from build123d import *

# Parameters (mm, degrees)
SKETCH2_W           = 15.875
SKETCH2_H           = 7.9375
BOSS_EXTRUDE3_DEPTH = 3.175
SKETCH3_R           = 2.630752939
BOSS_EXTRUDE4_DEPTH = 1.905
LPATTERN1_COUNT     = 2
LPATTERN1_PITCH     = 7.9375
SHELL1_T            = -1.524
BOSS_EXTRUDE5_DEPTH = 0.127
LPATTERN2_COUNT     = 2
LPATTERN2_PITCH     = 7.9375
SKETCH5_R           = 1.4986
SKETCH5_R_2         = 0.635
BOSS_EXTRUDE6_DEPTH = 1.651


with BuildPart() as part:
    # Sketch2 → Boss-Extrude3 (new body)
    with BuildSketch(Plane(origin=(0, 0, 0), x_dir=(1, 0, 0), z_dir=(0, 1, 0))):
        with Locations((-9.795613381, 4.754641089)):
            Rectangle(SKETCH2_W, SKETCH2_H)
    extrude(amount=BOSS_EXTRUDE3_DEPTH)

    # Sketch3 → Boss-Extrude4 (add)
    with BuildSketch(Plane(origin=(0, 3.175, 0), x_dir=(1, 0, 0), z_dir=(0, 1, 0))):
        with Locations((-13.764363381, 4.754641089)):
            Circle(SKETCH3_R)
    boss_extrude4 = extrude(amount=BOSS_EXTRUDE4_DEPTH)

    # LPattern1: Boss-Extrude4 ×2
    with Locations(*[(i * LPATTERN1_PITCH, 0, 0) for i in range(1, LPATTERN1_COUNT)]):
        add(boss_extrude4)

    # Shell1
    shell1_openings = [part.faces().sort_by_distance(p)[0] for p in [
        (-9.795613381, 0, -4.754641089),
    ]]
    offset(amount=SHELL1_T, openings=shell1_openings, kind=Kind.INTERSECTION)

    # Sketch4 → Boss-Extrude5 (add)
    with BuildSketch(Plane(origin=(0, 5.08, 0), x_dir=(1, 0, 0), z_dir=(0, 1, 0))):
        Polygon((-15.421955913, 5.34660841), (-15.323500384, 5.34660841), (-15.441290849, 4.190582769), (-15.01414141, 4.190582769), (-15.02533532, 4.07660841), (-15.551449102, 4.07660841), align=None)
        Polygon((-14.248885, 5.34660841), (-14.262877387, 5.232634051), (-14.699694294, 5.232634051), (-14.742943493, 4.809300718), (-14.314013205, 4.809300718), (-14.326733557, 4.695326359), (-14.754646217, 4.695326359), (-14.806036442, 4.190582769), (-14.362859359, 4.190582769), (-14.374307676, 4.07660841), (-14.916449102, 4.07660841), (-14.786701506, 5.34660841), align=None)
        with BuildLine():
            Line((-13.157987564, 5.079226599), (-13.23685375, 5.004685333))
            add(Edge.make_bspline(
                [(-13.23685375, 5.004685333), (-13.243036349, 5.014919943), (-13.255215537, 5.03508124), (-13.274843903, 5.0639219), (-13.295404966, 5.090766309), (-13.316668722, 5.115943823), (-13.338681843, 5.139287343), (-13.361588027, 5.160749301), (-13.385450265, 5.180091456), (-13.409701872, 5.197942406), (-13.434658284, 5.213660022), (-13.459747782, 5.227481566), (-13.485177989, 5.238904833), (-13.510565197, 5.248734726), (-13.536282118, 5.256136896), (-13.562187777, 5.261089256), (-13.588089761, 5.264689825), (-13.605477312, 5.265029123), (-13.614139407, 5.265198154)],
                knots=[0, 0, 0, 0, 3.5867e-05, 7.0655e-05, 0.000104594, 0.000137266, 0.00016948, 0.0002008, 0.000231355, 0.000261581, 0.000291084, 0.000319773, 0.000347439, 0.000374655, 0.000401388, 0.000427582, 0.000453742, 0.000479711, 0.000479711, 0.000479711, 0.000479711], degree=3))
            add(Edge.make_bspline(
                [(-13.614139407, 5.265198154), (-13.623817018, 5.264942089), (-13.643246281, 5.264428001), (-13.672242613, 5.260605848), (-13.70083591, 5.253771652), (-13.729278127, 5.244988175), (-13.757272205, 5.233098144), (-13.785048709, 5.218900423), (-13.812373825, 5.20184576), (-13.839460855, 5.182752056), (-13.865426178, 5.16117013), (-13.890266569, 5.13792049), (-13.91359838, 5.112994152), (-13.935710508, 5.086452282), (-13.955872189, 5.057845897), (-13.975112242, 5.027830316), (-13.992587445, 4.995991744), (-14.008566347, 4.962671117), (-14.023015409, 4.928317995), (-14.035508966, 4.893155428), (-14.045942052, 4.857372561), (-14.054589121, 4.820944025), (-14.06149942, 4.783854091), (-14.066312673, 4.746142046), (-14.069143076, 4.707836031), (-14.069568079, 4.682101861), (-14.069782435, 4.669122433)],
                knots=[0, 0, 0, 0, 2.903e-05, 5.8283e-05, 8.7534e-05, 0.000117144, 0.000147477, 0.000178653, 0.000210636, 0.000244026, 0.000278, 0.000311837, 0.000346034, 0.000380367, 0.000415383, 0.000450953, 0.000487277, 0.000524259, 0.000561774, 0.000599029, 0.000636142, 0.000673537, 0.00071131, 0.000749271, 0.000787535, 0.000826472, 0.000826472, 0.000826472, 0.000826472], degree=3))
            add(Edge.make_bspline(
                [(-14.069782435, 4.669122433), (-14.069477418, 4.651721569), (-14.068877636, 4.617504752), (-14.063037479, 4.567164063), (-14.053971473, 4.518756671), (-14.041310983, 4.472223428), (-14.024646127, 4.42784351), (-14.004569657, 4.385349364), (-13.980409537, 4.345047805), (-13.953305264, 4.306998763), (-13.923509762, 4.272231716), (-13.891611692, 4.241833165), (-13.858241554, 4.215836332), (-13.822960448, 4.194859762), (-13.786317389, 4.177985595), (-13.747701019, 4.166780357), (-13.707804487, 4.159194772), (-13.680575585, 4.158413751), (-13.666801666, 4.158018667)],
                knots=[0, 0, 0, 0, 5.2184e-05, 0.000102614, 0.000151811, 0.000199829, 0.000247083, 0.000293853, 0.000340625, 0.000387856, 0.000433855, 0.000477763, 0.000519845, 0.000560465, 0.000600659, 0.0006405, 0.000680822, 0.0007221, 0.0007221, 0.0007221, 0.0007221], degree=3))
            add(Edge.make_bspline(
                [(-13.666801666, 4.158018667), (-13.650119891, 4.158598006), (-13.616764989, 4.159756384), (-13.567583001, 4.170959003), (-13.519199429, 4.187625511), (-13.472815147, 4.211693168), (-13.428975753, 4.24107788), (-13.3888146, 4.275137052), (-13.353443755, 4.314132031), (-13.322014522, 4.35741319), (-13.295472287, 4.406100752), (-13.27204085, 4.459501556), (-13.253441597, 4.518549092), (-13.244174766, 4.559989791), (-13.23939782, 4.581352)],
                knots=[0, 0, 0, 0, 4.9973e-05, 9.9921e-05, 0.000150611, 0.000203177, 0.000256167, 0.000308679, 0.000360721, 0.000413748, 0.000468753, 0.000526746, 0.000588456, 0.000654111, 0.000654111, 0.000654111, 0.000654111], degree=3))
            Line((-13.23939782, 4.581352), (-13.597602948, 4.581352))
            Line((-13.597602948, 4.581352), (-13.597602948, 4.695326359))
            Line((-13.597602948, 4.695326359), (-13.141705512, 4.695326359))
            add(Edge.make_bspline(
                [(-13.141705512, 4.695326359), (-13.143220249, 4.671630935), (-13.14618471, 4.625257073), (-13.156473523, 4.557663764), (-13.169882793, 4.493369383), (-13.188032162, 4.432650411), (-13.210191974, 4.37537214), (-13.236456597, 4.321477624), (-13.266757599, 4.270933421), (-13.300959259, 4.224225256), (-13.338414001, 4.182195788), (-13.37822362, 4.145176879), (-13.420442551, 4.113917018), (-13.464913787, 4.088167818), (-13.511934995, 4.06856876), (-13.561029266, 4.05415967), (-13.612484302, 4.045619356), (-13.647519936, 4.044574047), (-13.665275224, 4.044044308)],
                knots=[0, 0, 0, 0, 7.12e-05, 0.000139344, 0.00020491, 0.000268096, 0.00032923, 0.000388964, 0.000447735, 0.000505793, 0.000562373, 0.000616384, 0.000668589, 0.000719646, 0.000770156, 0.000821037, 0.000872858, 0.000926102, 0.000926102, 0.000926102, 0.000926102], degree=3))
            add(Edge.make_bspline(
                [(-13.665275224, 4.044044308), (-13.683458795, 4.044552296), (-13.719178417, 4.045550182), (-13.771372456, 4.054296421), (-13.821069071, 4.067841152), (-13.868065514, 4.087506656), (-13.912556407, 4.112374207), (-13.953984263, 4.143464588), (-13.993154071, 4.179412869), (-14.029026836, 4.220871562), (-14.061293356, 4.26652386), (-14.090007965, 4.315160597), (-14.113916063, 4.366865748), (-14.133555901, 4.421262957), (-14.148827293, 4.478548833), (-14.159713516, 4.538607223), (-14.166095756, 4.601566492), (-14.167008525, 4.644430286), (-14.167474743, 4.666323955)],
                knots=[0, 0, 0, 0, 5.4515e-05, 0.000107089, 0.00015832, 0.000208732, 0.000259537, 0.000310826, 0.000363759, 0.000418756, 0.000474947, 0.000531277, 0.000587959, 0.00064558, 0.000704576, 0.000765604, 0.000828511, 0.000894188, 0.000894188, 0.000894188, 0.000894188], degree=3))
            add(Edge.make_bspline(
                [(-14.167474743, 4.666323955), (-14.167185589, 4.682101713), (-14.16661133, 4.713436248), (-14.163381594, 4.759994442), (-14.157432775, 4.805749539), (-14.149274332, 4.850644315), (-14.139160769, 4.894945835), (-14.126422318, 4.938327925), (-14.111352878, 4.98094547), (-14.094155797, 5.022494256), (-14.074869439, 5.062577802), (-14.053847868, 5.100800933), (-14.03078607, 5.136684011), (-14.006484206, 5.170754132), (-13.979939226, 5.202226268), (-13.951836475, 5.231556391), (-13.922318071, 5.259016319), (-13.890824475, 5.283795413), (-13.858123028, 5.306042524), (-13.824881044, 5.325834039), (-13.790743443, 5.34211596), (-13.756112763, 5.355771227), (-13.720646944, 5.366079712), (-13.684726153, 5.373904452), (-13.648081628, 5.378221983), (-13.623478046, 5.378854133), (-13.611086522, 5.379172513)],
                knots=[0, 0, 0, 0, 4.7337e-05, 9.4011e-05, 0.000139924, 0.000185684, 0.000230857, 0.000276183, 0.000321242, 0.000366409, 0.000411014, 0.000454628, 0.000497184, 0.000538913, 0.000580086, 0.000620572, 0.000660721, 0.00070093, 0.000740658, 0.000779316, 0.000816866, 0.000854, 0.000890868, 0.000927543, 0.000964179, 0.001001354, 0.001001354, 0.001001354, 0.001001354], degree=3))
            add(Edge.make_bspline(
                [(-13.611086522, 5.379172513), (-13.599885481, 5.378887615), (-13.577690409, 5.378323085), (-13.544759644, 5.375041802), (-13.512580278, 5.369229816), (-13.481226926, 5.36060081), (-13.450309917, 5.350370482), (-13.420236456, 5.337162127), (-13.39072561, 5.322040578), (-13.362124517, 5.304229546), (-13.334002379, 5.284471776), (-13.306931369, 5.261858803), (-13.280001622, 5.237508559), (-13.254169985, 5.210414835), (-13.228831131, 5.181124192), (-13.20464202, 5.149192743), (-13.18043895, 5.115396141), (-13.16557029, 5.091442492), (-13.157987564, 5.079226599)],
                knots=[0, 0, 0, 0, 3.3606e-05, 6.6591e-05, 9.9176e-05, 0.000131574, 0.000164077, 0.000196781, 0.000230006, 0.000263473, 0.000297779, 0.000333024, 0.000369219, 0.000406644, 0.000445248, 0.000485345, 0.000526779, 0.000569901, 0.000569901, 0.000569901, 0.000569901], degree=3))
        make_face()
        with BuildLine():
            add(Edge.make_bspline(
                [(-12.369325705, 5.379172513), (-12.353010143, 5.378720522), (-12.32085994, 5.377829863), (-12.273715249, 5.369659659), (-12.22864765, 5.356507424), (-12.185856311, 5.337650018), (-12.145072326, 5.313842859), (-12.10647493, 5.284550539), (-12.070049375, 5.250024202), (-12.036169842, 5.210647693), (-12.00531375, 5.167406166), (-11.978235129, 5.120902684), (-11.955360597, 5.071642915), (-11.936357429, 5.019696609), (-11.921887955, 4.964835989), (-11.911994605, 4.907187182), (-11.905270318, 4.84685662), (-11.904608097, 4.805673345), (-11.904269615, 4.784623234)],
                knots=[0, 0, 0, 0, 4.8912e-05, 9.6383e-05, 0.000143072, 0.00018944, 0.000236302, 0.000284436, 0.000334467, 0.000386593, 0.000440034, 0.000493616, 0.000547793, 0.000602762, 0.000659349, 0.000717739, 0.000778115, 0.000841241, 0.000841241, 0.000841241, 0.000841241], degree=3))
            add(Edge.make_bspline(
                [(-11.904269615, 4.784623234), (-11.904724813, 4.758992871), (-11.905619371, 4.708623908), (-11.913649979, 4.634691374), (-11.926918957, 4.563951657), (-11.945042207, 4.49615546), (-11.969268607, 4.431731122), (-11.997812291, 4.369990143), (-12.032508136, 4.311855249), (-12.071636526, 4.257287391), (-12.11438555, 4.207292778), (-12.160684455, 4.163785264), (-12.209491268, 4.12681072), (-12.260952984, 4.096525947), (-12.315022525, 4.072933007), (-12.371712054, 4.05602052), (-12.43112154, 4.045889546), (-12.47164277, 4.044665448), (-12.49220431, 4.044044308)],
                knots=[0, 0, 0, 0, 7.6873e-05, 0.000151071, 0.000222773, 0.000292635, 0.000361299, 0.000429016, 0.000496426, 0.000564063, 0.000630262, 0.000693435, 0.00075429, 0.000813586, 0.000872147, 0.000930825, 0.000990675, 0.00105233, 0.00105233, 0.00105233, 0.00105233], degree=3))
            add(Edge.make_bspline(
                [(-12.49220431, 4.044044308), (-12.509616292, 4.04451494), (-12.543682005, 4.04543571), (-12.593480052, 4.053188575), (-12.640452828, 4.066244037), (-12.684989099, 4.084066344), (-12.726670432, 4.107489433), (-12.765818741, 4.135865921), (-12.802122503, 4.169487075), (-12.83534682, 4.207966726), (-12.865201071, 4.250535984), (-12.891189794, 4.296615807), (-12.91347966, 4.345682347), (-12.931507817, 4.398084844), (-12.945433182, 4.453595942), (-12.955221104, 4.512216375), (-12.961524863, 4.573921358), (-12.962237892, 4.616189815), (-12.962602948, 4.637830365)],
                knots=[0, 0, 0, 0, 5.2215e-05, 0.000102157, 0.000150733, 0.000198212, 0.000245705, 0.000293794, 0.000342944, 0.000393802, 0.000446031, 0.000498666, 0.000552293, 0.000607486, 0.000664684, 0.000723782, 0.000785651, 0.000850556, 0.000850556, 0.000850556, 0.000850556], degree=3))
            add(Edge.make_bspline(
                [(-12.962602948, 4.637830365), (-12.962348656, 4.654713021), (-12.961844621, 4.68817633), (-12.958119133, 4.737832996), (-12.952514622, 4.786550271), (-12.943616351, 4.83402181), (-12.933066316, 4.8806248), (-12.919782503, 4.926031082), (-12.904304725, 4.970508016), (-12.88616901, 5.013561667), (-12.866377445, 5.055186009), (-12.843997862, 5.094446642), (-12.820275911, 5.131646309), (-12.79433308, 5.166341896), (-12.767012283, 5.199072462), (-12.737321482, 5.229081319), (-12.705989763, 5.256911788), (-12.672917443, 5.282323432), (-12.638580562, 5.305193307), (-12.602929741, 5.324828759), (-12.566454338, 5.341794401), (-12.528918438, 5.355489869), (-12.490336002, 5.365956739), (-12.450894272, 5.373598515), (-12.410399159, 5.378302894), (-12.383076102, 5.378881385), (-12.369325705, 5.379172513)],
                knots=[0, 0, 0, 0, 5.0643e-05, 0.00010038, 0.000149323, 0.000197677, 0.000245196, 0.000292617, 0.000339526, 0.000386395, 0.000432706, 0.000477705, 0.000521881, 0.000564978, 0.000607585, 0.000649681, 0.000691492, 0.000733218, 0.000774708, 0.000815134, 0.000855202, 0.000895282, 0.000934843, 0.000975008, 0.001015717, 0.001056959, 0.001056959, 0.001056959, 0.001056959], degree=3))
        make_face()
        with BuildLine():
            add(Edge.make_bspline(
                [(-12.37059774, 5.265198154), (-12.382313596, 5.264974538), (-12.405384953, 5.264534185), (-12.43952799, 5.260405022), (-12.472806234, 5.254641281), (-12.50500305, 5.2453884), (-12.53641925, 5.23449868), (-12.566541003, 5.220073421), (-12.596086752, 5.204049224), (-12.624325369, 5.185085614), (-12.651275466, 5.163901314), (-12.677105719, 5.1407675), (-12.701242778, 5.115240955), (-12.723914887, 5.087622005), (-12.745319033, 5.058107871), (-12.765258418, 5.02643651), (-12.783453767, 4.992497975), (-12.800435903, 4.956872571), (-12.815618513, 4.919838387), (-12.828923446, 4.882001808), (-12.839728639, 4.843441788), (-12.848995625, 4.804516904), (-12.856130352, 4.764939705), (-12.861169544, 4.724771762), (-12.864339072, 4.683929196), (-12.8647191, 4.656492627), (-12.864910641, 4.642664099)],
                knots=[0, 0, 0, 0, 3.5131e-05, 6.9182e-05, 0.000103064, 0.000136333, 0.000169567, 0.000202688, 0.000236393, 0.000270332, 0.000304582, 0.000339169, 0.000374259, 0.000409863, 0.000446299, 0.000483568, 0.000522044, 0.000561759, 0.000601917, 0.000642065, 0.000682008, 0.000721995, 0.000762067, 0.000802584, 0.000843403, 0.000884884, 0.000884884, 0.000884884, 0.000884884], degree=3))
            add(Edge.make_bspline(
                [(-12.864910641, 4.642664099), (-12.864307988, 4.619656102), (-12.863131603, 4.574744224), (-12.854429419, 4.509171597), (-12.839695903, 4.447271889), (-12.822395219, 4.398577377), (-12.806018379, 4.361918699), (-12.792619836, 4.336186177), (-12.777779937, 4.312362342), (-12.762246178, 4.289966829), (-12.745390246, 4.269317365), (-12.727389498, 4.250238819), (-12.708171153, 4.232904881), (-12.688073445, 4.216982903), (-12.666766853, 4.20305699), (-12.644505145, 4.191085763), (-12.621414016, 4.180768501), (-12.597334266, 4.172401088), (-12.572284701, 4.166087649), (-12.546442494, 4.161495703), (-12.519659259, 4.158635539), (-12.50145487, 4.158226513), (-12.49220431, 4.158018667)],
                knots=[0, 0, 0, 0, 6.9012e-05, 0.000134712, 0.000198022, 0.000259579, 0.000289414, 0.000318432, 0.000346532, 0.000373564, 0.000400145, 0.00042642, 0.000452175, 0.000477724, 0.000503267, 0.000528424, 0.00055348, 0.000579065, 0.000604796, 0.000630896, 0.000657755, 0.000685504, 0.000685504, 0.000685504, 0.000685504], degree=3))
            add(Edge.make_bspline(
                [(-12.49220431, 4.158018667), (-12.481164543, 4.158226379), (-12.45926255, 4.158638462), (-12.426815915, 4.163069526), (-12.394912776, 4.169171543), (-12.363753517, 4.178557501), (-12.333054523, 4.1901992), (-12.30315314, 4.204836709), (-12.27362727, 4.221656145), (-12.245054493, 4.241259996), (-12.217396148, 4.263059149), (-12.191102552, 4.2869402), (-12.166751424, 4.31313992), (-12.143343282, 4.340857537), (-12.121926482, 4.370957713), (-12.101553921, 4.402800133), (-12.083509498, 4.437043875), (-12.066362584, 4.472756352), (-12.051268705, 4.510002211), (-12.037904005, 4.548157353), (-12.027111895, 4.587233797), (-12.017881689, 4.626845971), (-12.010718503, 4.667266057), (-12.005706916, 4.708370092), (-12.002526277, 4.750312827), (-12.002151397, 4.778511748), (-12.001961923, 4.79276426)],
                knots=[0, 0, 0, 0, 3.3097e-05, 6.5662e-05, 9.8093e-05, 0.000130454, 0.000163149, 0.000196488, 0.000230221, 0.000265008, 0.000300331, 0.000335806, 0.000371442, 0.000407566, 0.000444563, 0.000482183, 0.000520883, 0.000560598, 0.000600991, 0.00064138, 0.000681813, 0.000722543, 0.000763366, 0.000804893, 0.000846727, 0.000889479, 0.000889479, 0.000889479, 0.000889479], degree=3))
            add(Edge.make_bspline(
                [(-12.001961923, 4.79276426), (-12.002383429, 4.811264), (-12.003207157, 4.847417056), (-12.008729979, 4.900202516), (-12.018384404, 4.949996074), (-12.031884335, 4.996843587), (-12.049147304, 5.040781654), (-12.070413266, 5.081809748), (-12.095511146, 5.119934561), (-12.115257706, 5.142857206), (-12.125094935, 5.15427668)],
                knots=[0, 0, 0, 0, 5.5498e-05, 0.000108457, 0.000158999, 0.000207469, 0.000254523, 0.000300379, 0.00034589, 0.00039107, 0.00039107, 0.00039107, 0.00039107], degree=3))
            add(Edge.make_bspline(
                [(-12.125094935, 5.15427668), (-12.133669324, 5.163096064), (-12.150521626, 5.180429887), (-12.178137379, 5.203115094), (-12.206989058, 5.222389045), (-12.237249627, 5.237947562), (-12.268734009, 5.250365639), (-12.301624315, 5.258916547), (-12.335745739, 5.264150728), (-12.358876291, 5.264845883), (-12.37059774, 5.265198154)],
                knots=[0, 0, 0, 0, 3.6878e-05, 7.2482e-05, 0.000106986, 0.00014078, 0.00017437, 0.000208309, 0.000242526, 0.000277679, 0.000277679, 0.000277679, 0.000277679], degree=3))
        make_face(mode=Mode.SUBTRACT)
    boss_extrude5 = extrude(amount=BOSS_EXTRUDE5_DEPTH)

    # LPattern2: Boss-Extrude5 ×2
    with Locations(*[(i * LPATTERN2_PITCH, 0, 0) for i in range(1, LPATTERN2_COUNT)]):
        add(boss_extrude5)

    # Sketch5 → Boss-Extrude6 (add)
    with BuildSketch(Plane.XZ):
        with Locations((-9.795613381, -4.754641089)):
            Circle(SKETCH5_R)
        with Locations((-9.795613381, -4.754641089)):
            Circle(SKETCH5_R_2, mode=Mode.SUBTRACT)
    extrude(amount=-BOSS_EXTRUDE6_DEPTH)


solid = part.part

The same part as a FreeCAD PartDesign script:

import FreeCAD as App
import Part
import Sketcher
from FreeCAD import Vector
Q = App.Units.Quantity


def faces_at(feature, points):
    """Names of the faces that lie closest to the given points."""
    faces = feature.Shape.Faces
    near = lambda p: min(range(len(faces)), key=lambda i: faces[i].distToShape(Part.Vertex(*p))[0])
    return sorted({f"Face{near(p) + 1}" for p in points})

doc = App.newDocument("Part")
body = doc.addObject("PartDesign::Body", "Body")

# Sketch on XZ plane
sketch1 = doc.addObject("Sketcher::SketchObject", "Sketch")
body.addObject(sketch1)
sketch1.AttachmentSupport = (doc.XZ_Plane, [""])
sketch1.MapMode = "FlatFace"
sketch1.addGeometry([
    Part.LineSegment(Vector(-18, -9, 0), Vector(-18, -1, 0)),
    Part.LineSegment(Vector(-18, -1, 0), Vector(-2, -1, 0)),
    Part.LineSegment(Vector(-2, -1, 0), Vector(-2, -9, 0)),
    Part.LineSegment(Vector(-2, -9, 0), Vector(-18, -9, 0)),
], False)
sketch1.addConstraint([
    Sketcher.Constraint("Coincident", 0, 2, 1, 1),
    Sketcher.Constraint("Coincident", 1, 2, 2, 1),
    Sketcher.Constraint("Coincident", 2, 2, 3, 1),
    Sketcher.Constraint("Coincident", 3, 2, 0, 1),
    Sketcher.Constraint("Vertical", 0),
    Sketcher.Constraint("Horizontal", 1),
    Sketcher.Constraint("Vertical", 2),
    Sketcher.Constraint("Horizontal", 3),
    Sketcher.Constraint("DistanceX", 1, 1, 1, 2, Q("0.625 in")),
    Sketcher.Constraint("DistanceY", 0, 1, 0, 2, Q("0.3125 in")),
    Sketcher.Constraint("DistanceY", 0, 2, -1, 1, 0.785891),
    Sketcher.Constraint("DistanceX", 0, 2, -1, 1, 17.733113),
])
pad1 = doc.addObject("PartDesign::Pad", "Pad")
body.addObject(pad1)
pad1.Profile = sketch1
pad1.Length = Q("0.125 in")
pad1.Reversed = True

# Sketch on XZ plane
sketch2 = doc.addObject("Sketcher::SketchObject", "Sketch001")
body.addObject(sketch2)
sketch2.AttachmentSupport = (doc.XZ_Plane, [""])
sketch2.MapMode = "FlatFace"
sketch2.AttachmentOffset = App.Placement(Vector(0, 0, -0.125 * 25.4), App.Rotation())
sketch2.addGeometry(Part.Circle(Vector(-13.8, -4.8, 0), Vector(0, 0, 1), 2.6), False)
sketch2.addConstraint([
    Sketcher.Constraint("Diameter", 0, 5.261506),
    Sketcher.Constraint("DistanceY", 0, 3, -1, 1, 4.754641),
    Sketcher.Constraint("DistanceX", 0, 3, -1, 1, 13.764363),
])
pad2 = doc.addObject("PartDesign::Pad", "Pad001")
body.addObject(pad2)
pad2.Profile = sketch2
pad2.Length = Q("0.075 in")
pad2.Reversed = True
doc.recompute()

linearpattern = doc.addObject("PartDesign::LinearPattern", "LinearPattern")
body.addObject(linearpattern)
linearpattern.Originals = [pad2]
linearpattern.Direction = (doc.X_Axis, [""])
linearpattern.Mode = "offset"
linearpattern.Offset = Q("0.3125 in")
linearpattern.Occurrences = 2
body.Tip = linearpattern
doc.recompute()

thickness = doc.addObject("PartDesign::Thickness", "Thickness")
body.addObject(thickness)
thickness.Base = (linearpattern, faces_at(linearpattern, [(-9.796, 0, -4.755)]))
thickness.Value = Q("0.06 in")
thickness.Reversed = True
thickness.Join = "Intersection"

# Sketch on XZ plane
sketch3 = doc.addObject("Sketcher::SketchObject", "Sketch002")
body.addObject(sketch3)
sketch3.AttachmentSupport = (doc.XZ_Plane, [""])
sketch3.MapMode = "FlatFace"
sketch3.AttachmentOffset = App.Placement(Vector(0, 0, -0.2 * 25.4), App.Rotation())
sketch3.addGeometry([
    Part.LineSegment(Vector(-15.3235, -5.346608, 0), Vector(-15.421956, -5.346608, 0)),  # 0
    Part.LineSegment(Vector(-15.421956, -5.346608, 0), Vector(-15.551449, -4.076608, 0)),  # 1
    Part.LineSegment(Vector(-15.551449, -4.076608, 0), Vector(-15.025335, -4.076608, 0)),  # 2
    Part.LineSegment(Vector(-15.025335, -4.076608, 0), Vector(-15.014141, -4.190583, 0)),  # 3
    Part.LineSegment(Vector(-15.014141, -4.190583, 0), Vector(-15.441291, -4.190583, 0)),  # 4
    Part.LineSegment(Vector(-15.441291, -4.190583, 0), Vector(-15.3235, -5.346608, 0)),  # 5
    Part.LineSegment(Vector(-14.262877, -5.232634, 0), Vector(-14.248885, -5.346608, 0)),  # 6
    Part.LineSegment(Vector(-14.248885, -5.346608, 0), Vector(-14.786702, -5.346608, 0)),  # 7
    Part.LineSegment(Vector(-14.786702, -5.346608, 0), Vector(-14.916449, -4.076608, 0)),  # 8
    Part.LineSegment(Vector(-14.916449, -4.076608, 0), Vector(-14.374308, -4.076608, 0)),  # 9
    Part.LineSegment(Vector(-14.374308, -4.076608, 0), Vector(-14.362859, -4.190583, 0)),  # 10
    Part.LineSegment(Vector(-14.362859, -4.190583, 0), Vector(-14.806036, -4.190583, 0)),  # 11
    Part.LineSegment(Vector(-14.806036, -4.190583, 0), Vector(-14.754646, -4.695326, 0)),  # 12
    Part.LineSegment(Vector(-14.754646, -4.695326, 0), Vector(-14.326734, -4.695326, 0)),  # 13
    Part.LineSegment(Vector(-14.326734, -4.695326, 0), Vector(-14.314013, -4.809301, 0)),  # 14
    Part.LineSegment(Vector(-14.314013, -4.809301, 0), Vector(-14.742943, -4.809301, 0)),  # 15
    Part.LineSegment(Vector(-14.742943, -4.809301, 0), Vector(-14.699694, -5.232634, 0)),  # 16
    Part.LineSegment(Vector(-14.699694, -5.232634, 0), Vector(-14.262877, -5.232634, 0)),  # 17
    Part.LineSegment(Vector(-13.236854, -5.004685, 0), Vector(-13.157988, -5.079227, 0)),  # 18
    Part.BSplineCurve([Vector(-13.611087, -5.379173, 0), Vector(-13.599885, -5.378888, 0), Vector(-13.57769, -5.378323, 0), Vector(-13.54476, -5.375042, 0), Vector(-13.51258, -5.36923, 0), Vector(-13.481227, -5.360601, 0), Vector(-13.45031, -5.35037, 0), Vector(-13.420236, -5.337162, 0), Vector(-13.390726, -5.322041, 0), Vector(-13.362125, -5.30423, 0), Vector(-13.334002, -5.284472, 0), Vector(-13.306931, -5.261859, 0), Vector(-13.280002, -5.237509, 0), Vector(-13.25417, -5.210415, 0), Vector(-13.228831, -5.181124, 0), Vector(-13.204642, -5.149193, 0), Vector(-13.180439, -5.115396, 0), Vector(-13.16557, -5.091442, 0), Vector(-13.157988, -5.079227, 0)], [4, 1, 1, 1, 1, 1, 1, 1, 1, 1, 1, 1, 1, 1, 1, 1, 4], [0, 0.000033606, 0.000066591, 0.000099176, 0.000131574, 0.000164077, 0.000196781, 0.000230006, 0.000263473, 0.000297779, 0.000333024, 0.000369219, 0.000406644, 0.000445248, 0.000485345, 0.000526779, 0.000569901], False, 3, [1, 1, 1, 1, 1, 1, 1, 1, 1, 1, 1, 1, 1, 1, 1, 1, 1, 1, 1], False),  # 19
    Part.BSplineCurve([Vector(-14.167475, -4.666324, 0), Vector(-14.167186, -4.682102, 0), Vector(-14.166611, -4.713436, 0), Vector(-14.163382, -4.759994, 0), Vector(-14.157433, -4.80575, 0), Vector(-14.149274, -4.850644, 0), Vector(-14.139161, -4.894946, 0), Vector(-14.126422, -4.938328, 0), Vector(-14.111353, -4.980945, 0), Vector(-14.094156, -5.022494, 0), Vector(-14.074869, -5.062578, 0), Vector(-14.053848, -5.100801, 0), Vector(-14.030786, -5.136684, 0), Vector(-14.006484, -5.170754, 0), Vector(-13.979939, -5.202226, 0), Vector(-13.951836, -5.231556, 0), Vector(-13.922318, -5.259016, 0), Vector(-13.890824, -5.283795, 0), Vector(-13.858123, -5.306043, 0), Vector(-13.824881, -5.325834, 0), Vector(-13.790743, -5.342116, 0), Vector(-13.756113, -5.355771, 0), Vector(-13.720647, -5.36608, 0), Vector(-13.684726, -5.373904, 0), Vector(-13.648082, -5.378222, 0), Vector(-13.623478, -5.378854, 0), Vector(-13.611087, -5.379173, 0)], [4, 1, 1, 1, 1, 1, 1, 1, 1, 1, 1, 1, 1, 1, 1, 1, 1, 1, 1, 1, 1, 1, 1, 1, 4], [0, 0.000047337, 0.000094011, 0.000139924, 0.000185684, 0.000230857, 0.000276183, 0.000321242, 0.000366409, 0.000411014, 0.000454628, 0.000497184, 0.000538913, 0.000580086, 0.000620572, 0.000660721, 0.00070093, 0.000740658, 0.000779316, 0.000816866, 0.000854, 0.000890868, 0.000927543, 0.000964179, 0.001001354], False, 3, [1, 1, 1, 1, 1, 1, 1, 1, 1, 1, 1, 1, 1, 1, 1, 1, 1, 1, 1, 1, 1, 1, 1, 1, 1, 1, 1], False),  # 20
    Part.BSplineCurve([Vector(-13.665275, -4.044044, 0), Vector(-13.683459, -4.044552, 0), Vector(-13.719178, -4.04555, 0), Vector(-13.771372, -4.054296, 0), Vector(-13.821069, -4.067841, 0), Vector(-13.868066, -4.087507, 0), Vector(-13.912556, -4.112374, 0), Vector(-13.953984, -4.143465, 0), Vector(-13.993154, -4.179413, 0), Vector(-14.029027, -4.220872, 0), Vector(-14.061293, -4.266524, 0), Vector(-14.090008, -4.315161, 0), Vector(-14.113916, -4.366866, 0), Vector(-14.133556, -4.421263, 0), Vector(-14.148827, -4.478549, 0), Vector(-14.159714, -4.538607, 0), Vector(-14.166096, -4.601566, 0), Vector(-14.167009, -4.64443, 0), Vector(-14.167475, -4.666324, 0)], [4, 1, 1, 1, 1, 1, 1, 1, 1, 1, 1, 1, 1, 1, 1, 1, 4], [0, 0.000054515, 0.000107089, 0.00015832, 0.000208732, 0.000259537, 0.000310826, 0.000363759, 0.000418756, 0.000474947, 0.000531277, 0.000587959, 0.00064558, 0.000704576, 0.000765604, 0.000828511, 0.000894188], False, 3, [1, 1, 1, 1, 1, 1, 1, 1, 1, 1, 1, 1, 1, 1, 1, 1, 1, 1, 1], False),  # 21
    Part.BSplineCurve([Vector(-13.141706, -4.695326, 0), Vector(-13.14322, -4.671631, 0), Vector(-13.146185, -4.625257, 0), Vector(-13.156474, -4.557664, 0), Vector(-13.169883, -4.493369, 0), Vector(-13.188032, -4.43265, 0), Vector(-13.210192, -4.375372, 0), Vector(-13.236457, -4.321478, 0), Vector(-13.266758, -4.270933, 0), Vector(-13.300959, -4.224225, 0), Vector(-13.338414, -4.182196, 0), Vector(-13.378224, -4.145177, 0), Vector(-13.420443, -4.113917, 0), Vector(-13.464914, -4.088168, 0), Vector(-13.511935, -4.068569, 0), Vector(-13.561029, -4.05416, 0), Vector(-13.612484, -4.045619, 0), Vector(-13.64752, -4.044574, 0), Vector(-13.665275, -4.044044, 0)], [4, 1, 1, 1, 1, 1, 1, 1, 1, 1, 1, 1, 1, 1, 1, 1, 4], [0, 0.0000712, 0.000139344, 0.00020491, 0.000268096, 0.00032923, 0.000388964, 0.000447735, 0.000505793, 0.000562373, 0.000616384, 0.000668589, 0.000719646, 0.000770156, 0.000821037, 0.000872858, 0.000926102], False, 3, [1, 1, 1, 1, 1, 1, 1, 1, 1, 1, 1, 1, 1, 1, 1, 1, 1, 1, 1], False),  # 22
    Part.LineSegment(Vector(-13.141706, -4.695326, 0), Vector(-13.597603, -4.695326, 0)),  # 23
    Part.LineSegment(Vector(-13.597603, -4.695326, 0), Vector(-13.597603, -4.581352, 0)),  # 24
    Part.LineSegment(Vector(-13.597603, -4.581352, 0), Vector(-13.239398, -4.581352, 0)),  # 25
    Part.BSplineCurve([Vector(-13.666802, -4.158019, 0), Vector(-13.65012, -4.158598, 0), Vector(-13.616765, -4.159756, 0), Vector(-13.567583, -4.170959, 0), Vector(-13.519199, -4.187626, 0), Vector(-13.472815, -4.211693, 0), Vector(-13.428976, -4.241078, 0), Vector(-13.388815, -4.275137, 0), Vector(-13.353444, -4.314132, 0), Vector(-13.322015, -4.357413, 0), Vector(-13.295472, -4.406101, 0), Vector(-13.272041, -4.459502, 0), Vector(-13.253442, -4.518549, 0), Vector(-13.244175, -4.55999, 0), Vector(-13.239398, -4.581352, 0)], [4, 1, 1, 1, 1, 1, 1, 1, 1, 1, 1, 1, 4], [0, 0.000049973, 0.000099921, 0.000150611, 0.000203177, 0.000256167, 0.000308679, 0.000360721, 0.000413748, 0.000468753, 0.000526746, 0.000588456, 0.000654111], False, 3, [1, 1, 1, 1, 1, 1, 1, 1, 1, 1, 1, 1, 1, 1, 1], False),  # 26
    Part.BSplineCurve([Vector(-14.069782, -4.669122, 0), Vector(-14.069477, -4.651722, 0), Vector(-14.068878, -4.617505, 0), Vector(-14.063037, -4.567164, 0), Vector(-14.053971, -4.518757, 0), Vector(-14.041311, -4.472223, 0), Vector(-14.024646, -4.427844, 0), Vector(-14.00457, -4.385349, 0), Vector(-13.98041, -4.345048, 0), Vector(-13.953305, -4.306999, 0), Vector(-13.92351, -4.272232, 0), Vector(-13.891612, -4.241833, 0), Vector(-13.858242, -4.215836, 0), Vector(-13.82296, -4.19486, 0), Vector(-13.786317, -4.177986, 0), Vector(-13.747701, -4.16678, 0), Vector(-13.707804, -4.159195, 0), Vector(-13.680576, -4.158414, 0), Vector(-13.666802, -4.158019, 0)], [4, 1, 1, 1, 1, 1, 1, 1, 1, 1, 1, 1, 1, 1, 1, 1, 4], [0, 0.000052184, 0.000102614, 0.000151811, 0.000199829, 0.000247083, 0.000293853, 0.000340625, 0.000387856, 0.000433855, 0.000477763, 0.000519845, 0.000560465, 0.000600659, 0.0006405, 0.000680822, 0.0007221], False, 3, [1, 1, 1, 1, 1, 1, 1, 1, 1, 1, 1, 1, 1, 1, 1, 1, 1, 1, 1], False),  # 27
    Part.BSplineCurve([Vector(-13.614139, -5.265198, 0), Vector(-13.623817, -5.264942, 0), Vector(-13.643246, -5.264428, 0), Vector(-13.672243, -5.260606, 0), Vector(-13.700836, -5.253772, 0), Vector(-13.729278, -5.244988, 0), Vector(-13.757272, -5.233098, 0), Vector(-13.785049, -5.2189, 0), Vector(-13.812374, -5.201846, 0), Vector(-13.839461, -5.182752, 0), Vector(-13.865426, -5.16117, 0), Vector(-13.890267, -5.13792, 0), Vector(-13.913598, -5.112994, 0), Vector(-13.935711, -5.086452, 0), Vector(-13.955872, -5.057846, 0), Vector(-13.975112, -5.02783, 0), Vector(-13.992587, -4.995992, 0), Vector(-14.008566, -4.962671, 0), Vector(-14.023015, -4.928318, 0), Vector(-14.035509, -4.893155, 0), Vector(-14.045942, -4.857373, 0), Vector(-14.054589, -4.820944, 0), Vector(-14.061499, -4.783854, 0), Vector(-14.066313, -4.746142, 0), Vector(-14.069143, -4.707836, 0), Vector(-14.069568, -4.682102, 0), Vector(-14.069782, -4.669122, 0)], [4, 1, 1, 1, 1, 1, 1, 1, 1, 1, 1, 1, 1, 1, 1, 1, 1, 1, 1, 1, 1, 1, 1, 1, 4], [0, 0.00002903, 0.000058283, 0.000087534, 0.000117144, 0.000147477, 0.000178653, 0.000210636, 0.000244026, 0.000278, 0.000311837, 0.000346034, 0.000380367, 0.000415383, 0.000450953, 0.000487277, 0.000524259, 0.000561774, 0.000599029, 0.000636142, 0.000673537, 0.00071131, 0.000749271, 0.000787535, 0.000826472], False, 3, [1, 1, 1, 1, 1, 1, 1, 1, 1, 1, 1, 1, 1, 1, 1, 1, 1, 1, 1, 1, 1, 1, 1, 1, 1, 1, 1], False),  # 28
    Part.BSplineCurve([Vector(-13.236854, -5.004685, 0), Vector(-13.243036, -5.01492, 0), Vector(-13.255216, -5.035081, 0), Vector(-13.274844, -5.063922, 0), Vector(-13.295405, -5.090766, 0), Vector(-13.316669, -5.115944, 0), Vector(-13.338682, -5.139287, 0), Vector(-13.361588, -5.160749, 0), Vector(-13.38545, -5.180091, 0), Vector(-13.409702, -5.197942, 0), Vector(-13.434658, -5.21366, 0), Vector(-13.459748, -5.227482, 0), Vector(-13.485178, -5.238905, 0), Vector(-13.510565, -5.248735, 0), Vector(-13.536282, -5.256137, 0), Vector(-13.562188, -5.261089, 0), Vector(-13.58809, -5.26469, 0), Vector(-13.605477, -5.265029, 0), Vector(-13.614139, -5.265198, 0)], [4, 1, 1, 1, 1, 1, 1, 1, 1, 1, 1, 1, 1, 1, 1, 1, 4], [0, 0.000035867, 0.000070655, 0.000104594, 0.000137266, 0.00016948, 0.0002008, 0.000231355, 0.000261581, 0.000291084, 0.000319773, 0.000347439, 0.000374655, 0.000401388, 0.000427582, 0.000453742, 0.000479711], False, 3, [1, 1, 1, 1, 1, 1, 1, 1, 1, 1, 1, 1, 1, 1, 1, 1, 1, 1, 1], False),  # 29
    Part.BSplineCurve([Vector(-12.369326, -5.379173, 0), Vector(-12.35301, -5.378721, 0), Vector(-12.32086, -5.37783, 0), Vector(-12.273715, -5.36966, 0), Vector(-12.228648, -5.356507, 0), Vector(-12.185856, -5.33765, 0), Vector(-12.145072, -5.313843, 0), Vector(-12.106475, -5.284551, 0), Vector(-12.070049, -5.250024, 0), Vector(-12.03617, -5.210648, 0), Vector(-12.005314, -5.167406, 0), Vector(-11.978235, -5.120903, 0), Vector(-11.955361, -5.071643, 0), Vector(-11.936357, -5.019697, 0), Vector(-11.921888, -4.964836, 0), Vector(-11.911995, -4.907187, 0), Vector(-11.90527, -4.846857, 0), Vector(-11.904608, -4.805673, 0), Vector(-11.90427, -4.784623, 0)], [4, 1, 1, 1, 1, 1, 1, 1, 1, 1, 1, 1, 1, 1, 1, 1, 4], [0, 0.000048912, 0.000096383, 0.000143072, 0.00018944, 0.000236302, 0.000284436, 0.000334467, 0.000386593, 0.000440034, 0.000493616, 0.000547793, 0.000602762, 0.000659349, 0.000717739, 0.000778115, 0.000841241], False, 3, [1, 1, 1, 1, 1, 1, 1, 1, 1, 1, 1, 1, 1, 1, 1, 1, 1, 1, 1], False),  # 30
    Part.BSplineCurve([Vector(-12.962603, -4.63783, 0), Vector(-12.962349, -4.654713, 0), Vector(-12.961845, -4.688176, 0), Vector(-12.958119, -4.737833, 0), Vector(-12.952515, -4.78655, 0), Vector(-12.943616, -4.834022, 0), Vector(-12.933066, -4.880625, 0), Vector(-12.919783, -4.926031, 0), Vector(-12.904305, -4.970508, 0), Vector(-12.886169, -5.013562, 0), Vector(-12.866377, -5.055186, 0), Vector(-12.843998, -5.094447, 0), Vector(-12.820276, -5.131646, 0), Vector(-12.794333, -5.166342, 0), Vector(-12.767012, -5.199072, 0), Vector(-12.737321, -5.229081, 0), Vector(-12.70599, -5.256912, 0), Vector(-12.672917, -5.282323, 0), Vector(-12.638581, -5.305193, 0), Vector(-12.60293, -5.324829, 0), Vector(-12.566454, -5.341794, 0), Vector(-12.528918, -5.35549, 0), Vector(-12.490336, -5.365957, 0), Vector(-12.450894, -5.373599, 0), Vector(-12.410399, -5.378303, 0), Vector(-12.383076, -5.378881, 0), Vector(-12.369326, -5.379173, 0)], [4, 1, 1, 1, 1, 1, 1, 1, 1, 1, 1, 1, 1, 1, 1, 1, 1, 1, 1, 1, 1, 1, 1, 1, 4], [0, 0.000050643, 0.00010038, 0.000149323, 0.000197677, 0.000245196, 0.000292617, 0.000339526, 0.000386395, 0.000432706, 0.000477705, 0.000521881, 0.000564978, 0.000607585, 0.000649681, 0.000691492, 0.000733218, 0.000774708, 0.000815134, 0.000855202, 0.000895282, 0.000934843, 0.000975008, 0.001015717, 0.001056959], False, 3, [1, 1, 1, 1, 1, 1, 1, 1, 1, 1, 1, 1, 1, 1, 1, 1, 1, 1, 1, 1, 1, 1, 1, 1, 1, 1, 1], False),  # 31
    Part.BSplineCurve([Vector(-12.492204, -4.044044, 0), Vector(-12.509616, -4.044515, 0), Vector(-12.543682, -4.045436, 0), Vector(-12.59348, -4.053189, 0), Vector(-12.640453, -4.066244, 0), Vector(-12.684989, -4.084066, 0), Vector(-12.72667, -4.107489, 0), Vector(-12.765819, -4.135866, 0), Vector(-12.802123, -4.169487, 0), Vector(-12.835347, -4.207967, 0), Vector(-12.865201, -4.250536, 0), Vector(-12.89119, -4.296616, 0), Vector(-12.91348, -4.345682, 0), Vector(-12.931508, -4.398085, 0), Vector(-12.945433, -4.453596, 0), Vector(-12.955221, -4.512216, 0), Vector(-12.961525, -4.573921, 0), Vector(-12.962238, -4.61619, 0), Vector(-12.962603, -4.63783, 0)], [4, 1, 1, 1, 1, 1, 1, 1, 1, 1, 1, 1, 1, 1, 1, 1, 4], [0, 0.000052215, 0.000102157, 0.000150733, 0.000198212, 0.000245705, 0.000293794, 0.000342944, 0.000393802, 0.000446031, 0.000498666, 0.000552293, 0.000607486, 0.000664684, 0.000723782, 0.000785651, 0.000850556], False, 3, [1, 1, 1, 1, 1, 1, 1, 1, 1, 1, 1, 1, 1, 1, 1, 1, 1, 1, 1], False),  # 32
    Part.BSplineCurve([Vector(-11.90427, -4.784623, 0), Vector(-11.904725, -4.758993, 0), Vector(-11.905619, -4.708624, 0), Vector(-11.91365, -4.634691, 0), Vector(-11.926919, -4.563952, 0), Vector(-11.945042, -4.496155, 0), Vector(-11.969269, -4.431731, 0), Vector(-11.997812, -4.36999, 0), Vector(-12.032508, -4.311855, 0), Vector(-12.071637, -4.257287, 0), Vector(-12.114386, -4.207293, 0), Vector(-12.160684, -4.163785, 0), Vector(-12.209491, -4.126811, 0), Vector(-12.260953, -4.096526, 0), Vector(-12.315023, -4.072933, 0), Vector(-12.371712, -4.056021, 0), Vector(-12.431122, -4.04589, 0), Vector(-12.471643, -4.044665, 0), Vector(-12.492204, -4.044044, 0)], [4, 1, 1, 1, 1, 1, 1, 1, 1, 1, 1, 1, 1, 1, 1, 1, 4], [0, 0.000076873, 0.000151071, 0.000222773, 0.000292635, 0.000361299, 0.000429016, 0.000496426, 0.000564063, 0.000630262, 0.000693435, 0.00075429, 0.000813586, 0.000872147, 0.000930825, 0.000990675, 0.00105233], False, 3, [1, 1, 1, 1, 1, 1, 1, 1, 1, 1, 1, 1, 1, 1, 1, 1, 1, 1, 1], False),  # 33
    Part.BSplineCurve([Vector(-12.125095, -5.154277, 0), Vector(-12.133669, -5.163096, 0), Vector(-12.150522, -5.18043, 0), Vector(-12.178137, -5.203115, 0), Vector(-12.206989, -5.222389, 0), Vector(-12.23725, -5.237948, 0), Vector(-12.268734, -5.250366, 0), Vector(-12.301624, -5.258917, 0), Vector(-12.335746, -5.264151, 0), Vector(-12.358876, -5.264846, 0), Vector(-12.370598, -5.265198, 0)], [4, 1, 1, 1, 1, 1, 1, 1, 4], [0, 0.000036878, 0.000072482, 0.000106986, 0.00014078, 0.00017437, 0.000208309, 0.000242526, 0.000277679], False, 3, [1, 1, 1, 1, 1, 1, 1, 1, 1, 1, 1], False),  # 34
    Part.BSplineCurve([Vector(-12.001962, -4.792764, 0), Vector(-12.002383, -4.811264, 0), Vector(-12.003207, -4.847417, 0), Vector(-12.00873, -4.900203, 0), Vector(-12.018384, -4.949996, 0), Vector(-12.031884, -4.996844, 0), Vector(-12.049147, -5.040782, 0), Vector(-12.070413, -5.08181, 0), Vector(-12.095511, -5.119935, 0), Vector(-12.115258, -5.142857, 0), Vector(-12.125095, -5.154277, 0)], [4, 1, 1, 1, 1, 1, 1, 1, 4], [0, 0.000055498, 0.000108457, 0.000158999, 0.000207469, 0.000254523, 0.000300379, 0.00034589, 0.00039107], False, 3, [1, 1, 1, 1, 1, 1, 1, 1, 1, 1, 1], False),  # 35
    Part.BSplineCurve([Vector(-12.492204, -4.158019, 0), Vector(-12.481165, -4.158226, 0), Vector(-12.459263, -4.158638, 0), Vector(-12.426816, -4.16307, 0), Vector(-12.394913, -4.169172, 0), Vector(-12.363754, -4.178558, 0), Vector(-12.333055, -4.190199, 0), Vector(-12.303153, -4.204837, 0), Vector(-12.273627, -4.221656, 0), Vector(-12.245054, -4.24126, 0), Vector(-12.217396, -4.263059, 0), Vector(-12.191103, -4.28694, 0), Vector(-12.166751, -4.31314, 0), Vector(-12.143343, -4.340858, 0), Vector(-12.121926, -4.370958, 0), Vector(-12.101554, -4.4028, 0), Vector(-12.083509, -4.437044, 0), Vector(-12.066363, -4.472756, 0), Vector(-12.051269, -4.510002, 0), Vector(-12.037904, -4.548157, 0), Vector(-12.027112, -4.587234, 0), Vector(-12.017882, -4.626846, 0), Vector(-12.010719, -4.667266, 0), Vector(-12.005707, -4.70837, 0), Vector(-12.002526, -4.750313, 0), Vector(-12.002151, -4.778512, 0), Vector(-12.001962, -4.792764, 0)], [4, 1, 1, 1, 1, 1, 1, 1, 1, 1, 1, 1, 1, 1, 1, 1, 1, 1, 1, 1, 1, 1, 1, 1, 4], [0, 0.000033097, 0.000065662, 0.000098093, 0.000130454, 0.000163149, 0.000196488, 0.000230221, 0.000265008, 0.000300331, 0.000335806, 0.000371442, 0.000407566, 0.000444563, 0.000482183, 0.000520883, 0.000560598, 0.000600991, 0.00064138, 0.000681813, 0.000722543, 0.000763366, 0.000804893, 0.000846727, 0.000889479], False, 3, [1, 1, 1, 1, 1, 1, 1, 1, 1, 1, 1, 1, 1, 1, 1, 1, 1, 1, 1, 1, 1, 1, 1, 1, 1, 1, 1], False),  # 36
    Part.BSplineCurve([Vector(-12.864911, -4.642664, 0), Vector(-12.864308, -4.619656, 0), Vector(-12.863132, -4.574744, 0), Vector(-12.854429, -4.509172, 0), Vector(-12.839696, -4.447272, 0), Vector(-12.822395, -4.398577, 0), Vector(-12.806018, -4.361919, 0), Vector(-12.79262, -4.336186, 0), Vector(-12.77778, -4.312362, 0), Vector(-12.762246, -4.289967, 0), Vector(-12.74539, -4.269317, 0), Vector(-12.727389, -4.250239, 0), Vector(-12.708171, -4.232905, 0), Vector(-12.688073, -4.216983, 0), Vector(-12.666767, -4.203057, 0), Vector(-12.644505, -4.191086, 0), Vector(-12.621414, -4.180769, 0), Vector(-12.597334, -4.172401, 0), Vector(-12.572285, -4.166088, 0), Vector(-12.546442, -4.161496, 0), Vector(-12.519659, -4.158636, 0), Vector(-12.501455, -4.158227, 0), Vector(-12.492204, -4.158019, 0)], [4, 1, 1, 1, 1, 1, 1, 1, 1, 1, 1, 1, 1, 1, 1, 1, 1, 1, 1, 1, 4], [0, 0.000069012, 0.000134712, 0.000198022, 0.000259579, 0.000289414, 0.000318432, 0.000346532, 0.000373564, 0.000400145, 0.00042642, 0.000452175, 0.000477724, 0.000503267, 0.000528424, 0.00055348, 0.000579065, 0.000604796, 0.000630896, 0.000657755, 0.000685504], False, 3, [1, 1, 1, 1, 1, 1, 1, 1, 1, 1, 1, 1, 1, 1, 1, 1, 1, 1, 1, 1, 1, 1, 1], False),  # 37
    Part.BSplineCurve([Vector(-12.370598, -5.265198, 0), Vector(-12.382314, -5.264975, 0), Vector(-12.405385, -5.264534, 0), Vector(-12.439528, -5.260405, 0), Vector(-12.472806, -5.254641, 0), Vector(-12.505003, -5.245388, 0), Vector(-12.536419, -5.234499, 0), Vector(-12.566541, -5.220073, 0), Vector(-12.596087, -5.204049, 0), Vector(-12.624325, -5.185086, 0), Vector(-12.651275, -5.163901, 0), Vector(-12.677106, -5.140767, 0), Vector(-12.701243, -5.115241, 0), Vector(-12.723915, -5.087622, 0), Vector(-12.745319, -5.058108, 0), Vector(-12.765258, -5.026437, 0), Vector(-12.783454, -4.992498, 0), Vector(-12.800436, -4.956873, 0), Vector(-12.815619, -4.919838, 0), Vector(-12.828923, -4.882002, 0), Vector(-12.839729, -4.843442, 0), Vector(-12.848996, -4.804517, 0), Vector(-12.85613, -4.76494, 0), Vector(-12.86117, -4.724772, 0), Vector(-12.864339, -4.683929, 0), Vector(-12.864719, -4.656493, 0), Vector(-12.864911, -4.642664, 0)], [4, 1, 1, 1, 1, 1, 1, 1, 1, 1, 1, 1, 1, 1, 1, 1, 1, 1, 1, 1, 1, 1, 1, 1, 4], [0, 0.000035131, 0.000069182, 0.000103064, 0.000136333, 0.000169567, 0.000202688, 0.000236393, 0.000270332, 0.000304582, 0.000339169, 0.000374259, 0.000409863, 0.000446299, 0.000483568, 0.000522044, 0.000561759, 0.000601917, 0.000642065, 0.000682008, 0.000721995, 0.000762067, 0.000802584, 0.000843403, 0.000884884], False, 3, [1, 1, 1, 1, 1, 1, 1, 1, 1, 1, 1, 1, 1, 1, 1, 1, 1, 1, 1, 1, 1, 1, 1, 1, 1, 1, 1], False),  # 38
], False)
sketch3.addConstraint([
    Sketcher.Constraint("Block", 19),
    Sketcher.Constraint("Block", 20),
    Sketcher.Constraint("Block", 21),
    Sketcher.Constraint("Block", 22),
    Sketcher.Constraint("Block", 26),
    Sketcher.Constraint("Block", 27),
    Sketcher.Constraint("Block", 28),
    Sketcher.Constraint("Block", 29),
    Sketcher.Constraint("Block", 30),
    Sketcher.Constraint("Block", 31),
    Sketcher.Constraint("Block", 32),
    Sketcher.Constraint("Block", 33),
    Sketcher.Constraint("Block", 34),
    Sketcher.Constraint("Block", 35),
    Sketcher.Constraint("Block", 36),
    Sketcher.Constraint("Block", 37),
    Sketcher.Constraint("Block", 38),
    Sketcher.Constraint("Coincident", 0, 2, 1, 1),
    Sketcher.Constraint("Coincident", 1, 2, 2, 1),
    Sketcher.Constraint("Coincident", 2, 2, 3, 1),
    Sketcher.Constraint("Coincident", 3, 2, 4, 1),
    Sketcher.Constraint("Coincident", 4, 2, 5, 1),
    Sketcher.Constraint("Coincident", 5, 2, 0, 1),
    Sketcher.Constraint("Coincident", 6, 2, 7, 1),
    Sketcher.Constraint("Coincident", 7, 2, 8, 1),
    Sketcher.Constraint("Coincident", 8, 2, 9, 1),
    Sketcher.Constraint("Coincident", 9, 2, 10, 1),
    Sketcher.Constraint("Coincident", 10, 2, 11, 1),
    Sketcher.Constraint("Coincident", 11, 2, 12, 1),
    Sketcher.Constraint("Coincident", 12, 2, 13, 1),
    Sketcher.Constraint("Coincident", 13, 2, 14, 1),
    Sketcher.Constraint("Coincident", 14, 2, 15, 1),
    Sketcher.Constraint("Coincident", 15, 2, 16, 1),
    Sketcher.Constraint("Coincident", 16, 2, 17, 1),
    Sketcher.Constraint("Coincident", 17, 2, 6, 1),
    Sketcher.Constraint("Coincident", 18, 2, 19, 2),
    Sketcher.Constraint("Coincident", 22, 1, 23, 1),
    Sketcher.Constraint("Coincident", 23, 2, 24, 1),
    Sketcher.Constraint("Coincident", 24, 2, 25, 1),
    Sketcher.Constraint("Coincident", 25, 2, 26, 2),
    Sketcher.Constraint("Coincident", 29, 1, 18, 1),
    Sketcher.Constraint("Horizontal", 0),
    Sketcher.Constraint("Horizontal", 2),
    Sketcher.Constraint("Horizontal", 4),
    Sketcher.Constraint("Horizontal", 7),
    Sketcher.Constraint("Horizontal", 9),
    Sketcher.Constraint("Horizontal", 11),
    Sketcher.Constraint("Horizontal", 13),
    Sketcher.Constraint("Horizontal", 15),
    Sketcher.Constraint("Horizontal", 17),
    Sketcher.Constraint("Horizontal", 23),
    Sketcher.Constraint("Vertical", 24),
    Sketcher.Constraint("Horizontal", 25),
    Sketcher.Constraint("Parallel", 8, 16),
    Sketcher.Constraint("Horizontal", 5, 2, 6, 2),
    Sketcher.Constraint("Horizontal", 2, 2, 8, 2),
    Sketcher.Constraint("Horizontal", 4, 2, 10, 2),
    Sketcher.Constraint("Horizontal", 13, 2, 23, 2),
    Sketcher.Constraint("DistanceY", 0, 2, 1, 2, Q("0.05 in")),
    Sketcher.Constraint("DistanceX", 1, 2, 8, 2, Q("0.025 in")),
    Sketcher.Constraint("DistanceX", 4, 2, 4, 1, 0.427149),
    Sketcher.Constraint("DistanceX", 9, 1, 9, 2, 0.542141),
    Sketcher.Constraint("DistanceX", 15, 2, 15, 1, 0.42893),
    Sketcher.Constraint("DistanceX", 5, 2, -1, 1, 15.3235),
    Sketcher.Constraint("DistanceX", 7, 2, -1, 1, 14.786702),
    Sketcher.Constraint("DistanceY", 14, 2, -1, 1, 4.809301),
    Sketcher.Constraint("DistanceX", 2, 2, 11, 2, 0.219299),
    Sketcher.Constraint("Distance", 5, 1.162011),
    Sketcher.Constraint("Distance", 6, 0.11483),
    Sketcher.Constraint("Distance", 8, 1.276611),
    Sketcher.Constraint("DistanceX", 0, 2, 0, 1, 0.098456),
    Sketcher.Constraint("DistanceX", 2, 1, 2, 2, 0.526114),
    Sketcher.Constraint("DistanceX", 7, 2, 7, 1, 0.537817),
    Sketcher.Constraint("DistanceX", 11, 2, 11, 1, 0.443177),
    Sketcher.Constraint("DistanceX", 13, 1, 13, 2, 0.427913),
    Sketcher.Constraint("DistanceX", 17, 1, 17, 2, 0.436817),
    Sketcher.Constraint("DistanceX", 23, 2, 23, 1, 0.455897),
    Sketcher.Constraint("DistanceY", 0, 2, -1, 1, 5.346608),
    Sketcher.Constraint("DistanceX", 3, 2, -1, 1, 15.014141),
    Sketcher.Constraint("DistanceX", 11, 2, 12, 2, 0.05139),
    Sketcher.Constraint("DistanceX", 13, 2, 14, 2, 0.01272),
])
pad3 = doc.addObject("PartDesign::Pad", "Pad002")
body.addObject(pad3)
pad3.Profile = sketch3
pad3.Length = Q("0.005 in")
pad3.Reversed = True
doc.recompute()

linearpattern2 = doc.addObject("PartDesign::LinearPattern", "LinearPattern001")
body.addObject(linearpattern2)
linearpattern2.Originals = [pad3]
linearpattern2.Direction = (doc.X_Axis, [""])
linearpattern2.Mode = "offset"
linearpattern2.Offset = Q("0.3125 in")
linearpattern2.Occurrences = 2
body.Tip = linearpattern2

# Sketch on XZ plane
sketch4 = doc.addObject("Sketcher::SketchObject", "Sketch003")
body.addObject(sketch4)
sketch4.AttachmentSupport = (doc.XZ_Plane, [""])
sketch4.MapMode = "FlatFace"
sketch4.addGeometry([
    Part.Circle(Vector(-9.8, -4.8, 0), Vector(0, 0, 1), 1.5),
    Part.Circle(Vector(-9.8, -4.8, 0), Vector(0, 0, 1), 0.6),
], False)
sketch4.addConstraint([
    Sketcher.Constraint("Coincident", 1, 3, 0, 3),
    Sketcher.Constraint("Diameter", 1, Q("0.05 in")),
    Sketcher.Constraint("Diameter", 0, Q("0.118 in")),
    Sketcher.Constraint("DistanceY", 0, 3, -1, 1, 4.754641),
    Sketcher.Constraint("DistanceX", 0, 3, -1, 1, 9.795613),
])
pad4 = doc.addObject("PartDesign::Pad", "Pad003")
body.addObject(pad4)
pad4.Profile = sketch4
pad4.Length = Q("0.065 in")
pad4.Reversed = True

doc.recompute()
